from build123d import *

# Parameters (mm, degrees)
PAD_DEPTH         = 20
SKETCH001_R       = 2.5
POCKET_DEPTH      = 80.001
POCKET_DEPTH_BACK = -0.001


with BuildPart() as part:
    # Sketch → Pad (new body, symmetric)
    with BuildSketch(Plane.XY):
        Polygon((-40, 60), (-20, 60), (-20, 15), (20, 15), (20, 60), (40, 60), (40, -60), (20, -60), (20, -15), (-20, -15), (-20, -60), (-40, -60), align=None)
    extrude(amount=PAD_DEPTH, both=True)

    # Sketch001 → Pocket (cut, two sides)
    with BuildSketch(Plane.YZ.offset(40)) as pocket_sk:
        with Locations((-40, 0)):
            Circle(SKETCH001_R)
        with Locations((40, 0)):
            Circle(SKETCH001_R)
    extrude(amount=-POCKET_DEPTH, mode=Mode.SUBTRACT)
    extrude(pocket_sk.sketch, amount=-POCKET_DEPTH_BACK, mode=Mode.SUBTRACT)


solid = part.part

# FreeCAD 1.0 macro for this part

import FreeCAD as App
import Part
import Sketcher

V = App.Vector
Q = App.Units.Quantity

doc = App.newDocument("Part")
params = doc.addObject("Spreadsheet::Sheet", "Params")
for row, (alias, value) in enumerate([
    ("sketch1_width", "20 mm"),
    ("sketch1_width2", "40 mm"),
    ("sketch1_height", "120 mm"),
    ("sketch1_height2", "45 mm"),
    ("pad1_length", "40 mm"),
    ("sketch2_diameter", "5 mm"),
], start=1):
    params.set(f"A{row}", alias)
    params.set(f"B{row}", "=" + value)
    params.setAlias(f"B{row}", alias)

body = doc.addObject("PartDesign::Body", "Body")

# Sketch on XY plane
sketch1 = doc.addObject("Sketcher::SketchObject", "Sketch")
body.addObject(sketch1)
sketch1.AttachmentSupport = (doc.XY_Plane, [""])
sketch1.MapMode = "FlatFace"
sketch1.addGeometry([
    Part.LineSegment(V(-20, 60, 0), V(-40, 60, 0)),  # 0
    Part.LineSegment(V(-40, 60, 0), V(-40, -60, 0)),  # 1
    Part.LineSegment(V(-40, -60, 0), V(-20, -60, 0)),  # 2
    Part.LineSegment(V(-20, -60, 0), V(-20, -15, 0)),  # 3
    Part.LineSegment(V(-20, -15, 0), V(20, -15, 0)),  # 4
    Part.LineSegment(V(20, -15, 0), V(20, -60, 0)),  # 5
    Part.LineSegment(V(20, -60, 0), V(40, -60, 0)),  # 6
    Part.LineSegment(V(40, -60, 0), V(40, 60, 0)),  # 7
    Part.LineSegment(V(40, 60, 0), V(20, 60, 0)),  # 8
    Part.LineSegment(V(20, 60, 0), V(20, 15, 0)),  # 9
    Part.LineSegment(V(20, 15, 0), V(-20, 15, 0)),  # 10
    Part.LineSegment(V(-20, 15, 0), V(-20, 60, 0)),  # 11
], False)
sketch1.addConstraint([
    Sketcher.Constraint("Coincident", 0, 2, 1, 1),
    Sketcher.Constraint("Coincident", 1, 2, 2, 1),
    Sketcher.Constraint("Coincident", 2, 2, 3, 1),
    Sketcher.Constraint("Coincident", 3, 2, 4, 1),
    Sketcher.Constraint("Coincident", 4, 2, 5, 1),
    Sketcher.Constraint("Coincident", 5, 2, 6, 1),
    Sketcher.Constraint("Coincident", 6, 2, 7, 1),
    Sketcher.Constraint("Coincident", 7, 2, 8, 1),
    Sketcher.Constraint("Coincident", 8, 2, 9, 1),
    Sketcher.Constraint("Coincident", 9, 2, 10, 1),
    Sketcher.Constraint("Coincident", 10, 2, 11, 1),
    Sketcher.Constraint("Coincident", 11, 2, 0, 1),
    Sketcher.Constraint("Horizontal", 0),
    Sketcher.Constraint("Vertical", 1),
    Sketcher.Constraint("Horizontal", 2),
    Sketcher.Constraint("Vertical", 3),
    Sketcher.Constraint("Horizontal", 4),
    Sketcher.Constraint("Vertical", 5),
    Sketcher.Constraint("Horizontal", 6),
    Sketcher.Constraint("Vertical", 7),
    Sketcher.Constraint("Horizontal", 8),
    Sketcher.Constraint("Vertical", 9),
    Sketcher.Constraint("Horizontal", 10),
    Sketcher.Constraint("Vertical", 11),
    Sketcher.Constraint("Symmetric", 0, 2, 6, 2, -1, 1),
    Sketcher.Constraint("Symmetric", 2, 2, 8, 2, -1, 1),
    Sketcher.Constraint("Symmetric", 4, 2, 10, 2, -1, 1),
    Sketcher.Constraint("Symmetric", 2, 2, 5, 2, -2),
    Sketcher.Constraint("DistanceX", 0, 2, 0, 1, Q("20 mm")),
    Sketcher.Constraint("DistanceX", 4, 1, 4, 2, Q("40 mm")),
    Sketcher.Constraint("DistanceY", 1, 2, 1, 1, Q("120 mm")),
    Sketcher.Constraint("DistanceY", 3, 1, 3, 2, Q("45 mm")),
])
sketch1.setExpression("Constraints[28]", "Params.sketch1_width")
sketch1.setExpression("Constraints[29]", "Params.sketch1_width2")
sketch1.setExpression("Constraints[30]", "Params.sketch1_height")
sketch1.setExpression("Constraints[31]", "Params.sketch1_height2")
pad1 = doc.addObject("PartDesign::Pad", "Pad")
body.addObject(pad1)
pad1.Profile = sketch1
pad1.setExpression("Length", "Params.pad1_length")
pad1.Midplane = True

# Sketch on YZ plane
sketch2 = doc.addObject("Sketcher::SketchObject", "Sketch001")
body.addObject(sketch2)
sketch2.AttachmentSupport = (doc.YZ_Plane, [""])
sketch2.MapMode = "FlatFace"
sketch2.AttachmentOffset = App.Placement(V(0, 0, 40), App.Rotation())
sketch2.addGeometry([
    Part.Circle(V(-40, 0, 0), V(0, 0, 1), 2.5),
    Part.Circle(V(40, 0, 0), V(0, 0, 1), 2.5),
], False)
sketch2.addConstraint([
    Sketcher.Constraint("Equal", 0, 1),
    Sketcher.Constraint("Symmetric", 0, 3, 1, 3, -1, 1),
    Sketcher.Constraint("PointOnObject", 0, 3, -1),
    Sketcher.Constraint("Diameter", 0, Q("5 mm")),
    Sketcher.Constraint("DistanceX", 0, 3, -1, 1, Q("40 mm")),
])
sketch2.setExpression("Constraints[3]", "Params.sketch2_diameter")
pocket1 = doc.addObject("PartDesign::Pocket", "Pocket")
body.addObject(pocket1)
pocket1.Profile = sketch2
pocket1.Type = "ThroughAll"
pocket1.Midplane = True

doc.recompute()
